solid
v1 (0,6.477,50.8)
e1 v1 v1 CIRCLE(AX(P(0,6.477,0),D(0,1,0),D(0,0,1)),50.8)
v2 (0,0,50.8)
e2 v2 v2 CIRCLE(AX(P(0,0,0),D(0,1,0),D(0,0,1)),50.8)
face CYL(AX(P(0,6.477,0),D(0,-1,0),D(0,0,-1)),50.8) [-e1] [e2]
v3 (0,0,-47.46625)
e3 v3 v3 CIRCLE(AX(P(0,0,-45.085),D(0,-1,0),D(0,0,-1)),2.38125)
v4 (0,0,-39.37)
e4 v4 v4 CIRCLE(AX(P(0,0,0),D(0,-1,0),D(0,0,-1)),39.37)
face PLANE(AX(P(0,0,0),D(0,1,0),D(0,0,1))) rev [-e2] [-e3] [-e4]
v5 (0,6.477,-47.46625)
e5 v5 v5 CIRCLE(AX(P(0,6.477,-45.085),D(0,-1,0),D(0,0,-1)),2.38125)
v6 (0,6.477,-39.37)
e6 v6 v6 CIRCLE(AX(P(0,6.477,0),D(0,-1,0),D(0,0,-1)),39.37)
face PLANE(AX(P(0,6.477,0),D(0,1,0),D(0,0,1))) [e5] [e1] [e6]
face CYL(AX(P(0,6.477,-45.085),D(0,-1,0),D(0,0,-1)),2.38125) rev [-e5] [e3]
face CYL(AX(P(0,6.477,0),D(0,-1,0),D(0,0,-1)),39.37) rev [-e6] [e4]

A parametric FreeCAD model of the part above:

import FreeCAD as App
import Part
import Sketcher
Q = App.Units.Quantity

doc = App.newDocument("Part")
body = doc.addObject("PartDesign::Body", "Body")

# Sketch on XZ plane
sketch1 = body.newObject("Sketcher::SketchObject", "Sketch")
sketch1.AttachmentSupport = (doc.getObject("XZ_Plane"), [""])
sketch1.MapMode = "FlatFace"
sketch1.addGeometry(Part.Circle(App.Vector(0, 0, 0), App.Vector(0, 0, 1), 51), False)
sketch1.addConstraint(Sketcher.Constraint("Coincident", 0, 3, -1, 1))
sketch1.addConstraint(Sketcher.Constraint("Diameter", 0, Q("4 in")))
pad1 = body.newObject("PartDesign::Pad", "Pad")
pad1.Profile = sketch1
pad1.Length = Q("0.255 in")
pad1.Reversed = True

# Sketch on XZ plane
sketch2 = body.newObject("Sketcher::SketchObject", "Sketch001")
sketch2.AttachmentSupport = (doc.getObject("XZ_Plane"), [""])
sketch2.MapMode = "FlatFace"
sketch2.addGeometry(Part.Circle(App.Vector(0, 0, 0), App.Vector(0, 0, 1), 39), False)
sketch2.addConstraint(Sketcher.Constraint("Coincident", 0, 3, -1, 1))
sketch2.addConstraint(Sketcher.Constraint("Diameter", 0, Q("3.1 in")))
pocket1 = body.newObject("PartDesign::Pocket", "Pocket")
pocket1.Profile = sketch2
pocket1.Length = Q("0.255 in")

# Sketch on XZ plane
sketch3 = body.newObject("Sketcher::SketchObject", "Sketch002")
sketch3.AttachmentSupport = (doc.getObject("XZ_Plane"), [""])
sketch3.MapMode = "FlatFace"
sketch3.addGeometry(Part.Circle(App.Vector(0, -45.1, 0), App.Vector(0, 0, 1), 2.4), False)
sketch3.addConstraint(Sketcher.Constraint("PointOnObject", 0, 3, -2))
sketch3.addConstraint(Sketcher.Constraint("Diameter", 0, Q("0.1875 in")))
sketch3.addConstraint(Sketcher.Constraint("DistanceY", 0, 3, -1, 1, Q("1.775 in")))
pocket2 = body.newObject("PartDesign::Pocket", "Pocket001")
pocket2.Profile = sketch3
pocket2.Length = Q("0.255 in")

doc.recompute()
